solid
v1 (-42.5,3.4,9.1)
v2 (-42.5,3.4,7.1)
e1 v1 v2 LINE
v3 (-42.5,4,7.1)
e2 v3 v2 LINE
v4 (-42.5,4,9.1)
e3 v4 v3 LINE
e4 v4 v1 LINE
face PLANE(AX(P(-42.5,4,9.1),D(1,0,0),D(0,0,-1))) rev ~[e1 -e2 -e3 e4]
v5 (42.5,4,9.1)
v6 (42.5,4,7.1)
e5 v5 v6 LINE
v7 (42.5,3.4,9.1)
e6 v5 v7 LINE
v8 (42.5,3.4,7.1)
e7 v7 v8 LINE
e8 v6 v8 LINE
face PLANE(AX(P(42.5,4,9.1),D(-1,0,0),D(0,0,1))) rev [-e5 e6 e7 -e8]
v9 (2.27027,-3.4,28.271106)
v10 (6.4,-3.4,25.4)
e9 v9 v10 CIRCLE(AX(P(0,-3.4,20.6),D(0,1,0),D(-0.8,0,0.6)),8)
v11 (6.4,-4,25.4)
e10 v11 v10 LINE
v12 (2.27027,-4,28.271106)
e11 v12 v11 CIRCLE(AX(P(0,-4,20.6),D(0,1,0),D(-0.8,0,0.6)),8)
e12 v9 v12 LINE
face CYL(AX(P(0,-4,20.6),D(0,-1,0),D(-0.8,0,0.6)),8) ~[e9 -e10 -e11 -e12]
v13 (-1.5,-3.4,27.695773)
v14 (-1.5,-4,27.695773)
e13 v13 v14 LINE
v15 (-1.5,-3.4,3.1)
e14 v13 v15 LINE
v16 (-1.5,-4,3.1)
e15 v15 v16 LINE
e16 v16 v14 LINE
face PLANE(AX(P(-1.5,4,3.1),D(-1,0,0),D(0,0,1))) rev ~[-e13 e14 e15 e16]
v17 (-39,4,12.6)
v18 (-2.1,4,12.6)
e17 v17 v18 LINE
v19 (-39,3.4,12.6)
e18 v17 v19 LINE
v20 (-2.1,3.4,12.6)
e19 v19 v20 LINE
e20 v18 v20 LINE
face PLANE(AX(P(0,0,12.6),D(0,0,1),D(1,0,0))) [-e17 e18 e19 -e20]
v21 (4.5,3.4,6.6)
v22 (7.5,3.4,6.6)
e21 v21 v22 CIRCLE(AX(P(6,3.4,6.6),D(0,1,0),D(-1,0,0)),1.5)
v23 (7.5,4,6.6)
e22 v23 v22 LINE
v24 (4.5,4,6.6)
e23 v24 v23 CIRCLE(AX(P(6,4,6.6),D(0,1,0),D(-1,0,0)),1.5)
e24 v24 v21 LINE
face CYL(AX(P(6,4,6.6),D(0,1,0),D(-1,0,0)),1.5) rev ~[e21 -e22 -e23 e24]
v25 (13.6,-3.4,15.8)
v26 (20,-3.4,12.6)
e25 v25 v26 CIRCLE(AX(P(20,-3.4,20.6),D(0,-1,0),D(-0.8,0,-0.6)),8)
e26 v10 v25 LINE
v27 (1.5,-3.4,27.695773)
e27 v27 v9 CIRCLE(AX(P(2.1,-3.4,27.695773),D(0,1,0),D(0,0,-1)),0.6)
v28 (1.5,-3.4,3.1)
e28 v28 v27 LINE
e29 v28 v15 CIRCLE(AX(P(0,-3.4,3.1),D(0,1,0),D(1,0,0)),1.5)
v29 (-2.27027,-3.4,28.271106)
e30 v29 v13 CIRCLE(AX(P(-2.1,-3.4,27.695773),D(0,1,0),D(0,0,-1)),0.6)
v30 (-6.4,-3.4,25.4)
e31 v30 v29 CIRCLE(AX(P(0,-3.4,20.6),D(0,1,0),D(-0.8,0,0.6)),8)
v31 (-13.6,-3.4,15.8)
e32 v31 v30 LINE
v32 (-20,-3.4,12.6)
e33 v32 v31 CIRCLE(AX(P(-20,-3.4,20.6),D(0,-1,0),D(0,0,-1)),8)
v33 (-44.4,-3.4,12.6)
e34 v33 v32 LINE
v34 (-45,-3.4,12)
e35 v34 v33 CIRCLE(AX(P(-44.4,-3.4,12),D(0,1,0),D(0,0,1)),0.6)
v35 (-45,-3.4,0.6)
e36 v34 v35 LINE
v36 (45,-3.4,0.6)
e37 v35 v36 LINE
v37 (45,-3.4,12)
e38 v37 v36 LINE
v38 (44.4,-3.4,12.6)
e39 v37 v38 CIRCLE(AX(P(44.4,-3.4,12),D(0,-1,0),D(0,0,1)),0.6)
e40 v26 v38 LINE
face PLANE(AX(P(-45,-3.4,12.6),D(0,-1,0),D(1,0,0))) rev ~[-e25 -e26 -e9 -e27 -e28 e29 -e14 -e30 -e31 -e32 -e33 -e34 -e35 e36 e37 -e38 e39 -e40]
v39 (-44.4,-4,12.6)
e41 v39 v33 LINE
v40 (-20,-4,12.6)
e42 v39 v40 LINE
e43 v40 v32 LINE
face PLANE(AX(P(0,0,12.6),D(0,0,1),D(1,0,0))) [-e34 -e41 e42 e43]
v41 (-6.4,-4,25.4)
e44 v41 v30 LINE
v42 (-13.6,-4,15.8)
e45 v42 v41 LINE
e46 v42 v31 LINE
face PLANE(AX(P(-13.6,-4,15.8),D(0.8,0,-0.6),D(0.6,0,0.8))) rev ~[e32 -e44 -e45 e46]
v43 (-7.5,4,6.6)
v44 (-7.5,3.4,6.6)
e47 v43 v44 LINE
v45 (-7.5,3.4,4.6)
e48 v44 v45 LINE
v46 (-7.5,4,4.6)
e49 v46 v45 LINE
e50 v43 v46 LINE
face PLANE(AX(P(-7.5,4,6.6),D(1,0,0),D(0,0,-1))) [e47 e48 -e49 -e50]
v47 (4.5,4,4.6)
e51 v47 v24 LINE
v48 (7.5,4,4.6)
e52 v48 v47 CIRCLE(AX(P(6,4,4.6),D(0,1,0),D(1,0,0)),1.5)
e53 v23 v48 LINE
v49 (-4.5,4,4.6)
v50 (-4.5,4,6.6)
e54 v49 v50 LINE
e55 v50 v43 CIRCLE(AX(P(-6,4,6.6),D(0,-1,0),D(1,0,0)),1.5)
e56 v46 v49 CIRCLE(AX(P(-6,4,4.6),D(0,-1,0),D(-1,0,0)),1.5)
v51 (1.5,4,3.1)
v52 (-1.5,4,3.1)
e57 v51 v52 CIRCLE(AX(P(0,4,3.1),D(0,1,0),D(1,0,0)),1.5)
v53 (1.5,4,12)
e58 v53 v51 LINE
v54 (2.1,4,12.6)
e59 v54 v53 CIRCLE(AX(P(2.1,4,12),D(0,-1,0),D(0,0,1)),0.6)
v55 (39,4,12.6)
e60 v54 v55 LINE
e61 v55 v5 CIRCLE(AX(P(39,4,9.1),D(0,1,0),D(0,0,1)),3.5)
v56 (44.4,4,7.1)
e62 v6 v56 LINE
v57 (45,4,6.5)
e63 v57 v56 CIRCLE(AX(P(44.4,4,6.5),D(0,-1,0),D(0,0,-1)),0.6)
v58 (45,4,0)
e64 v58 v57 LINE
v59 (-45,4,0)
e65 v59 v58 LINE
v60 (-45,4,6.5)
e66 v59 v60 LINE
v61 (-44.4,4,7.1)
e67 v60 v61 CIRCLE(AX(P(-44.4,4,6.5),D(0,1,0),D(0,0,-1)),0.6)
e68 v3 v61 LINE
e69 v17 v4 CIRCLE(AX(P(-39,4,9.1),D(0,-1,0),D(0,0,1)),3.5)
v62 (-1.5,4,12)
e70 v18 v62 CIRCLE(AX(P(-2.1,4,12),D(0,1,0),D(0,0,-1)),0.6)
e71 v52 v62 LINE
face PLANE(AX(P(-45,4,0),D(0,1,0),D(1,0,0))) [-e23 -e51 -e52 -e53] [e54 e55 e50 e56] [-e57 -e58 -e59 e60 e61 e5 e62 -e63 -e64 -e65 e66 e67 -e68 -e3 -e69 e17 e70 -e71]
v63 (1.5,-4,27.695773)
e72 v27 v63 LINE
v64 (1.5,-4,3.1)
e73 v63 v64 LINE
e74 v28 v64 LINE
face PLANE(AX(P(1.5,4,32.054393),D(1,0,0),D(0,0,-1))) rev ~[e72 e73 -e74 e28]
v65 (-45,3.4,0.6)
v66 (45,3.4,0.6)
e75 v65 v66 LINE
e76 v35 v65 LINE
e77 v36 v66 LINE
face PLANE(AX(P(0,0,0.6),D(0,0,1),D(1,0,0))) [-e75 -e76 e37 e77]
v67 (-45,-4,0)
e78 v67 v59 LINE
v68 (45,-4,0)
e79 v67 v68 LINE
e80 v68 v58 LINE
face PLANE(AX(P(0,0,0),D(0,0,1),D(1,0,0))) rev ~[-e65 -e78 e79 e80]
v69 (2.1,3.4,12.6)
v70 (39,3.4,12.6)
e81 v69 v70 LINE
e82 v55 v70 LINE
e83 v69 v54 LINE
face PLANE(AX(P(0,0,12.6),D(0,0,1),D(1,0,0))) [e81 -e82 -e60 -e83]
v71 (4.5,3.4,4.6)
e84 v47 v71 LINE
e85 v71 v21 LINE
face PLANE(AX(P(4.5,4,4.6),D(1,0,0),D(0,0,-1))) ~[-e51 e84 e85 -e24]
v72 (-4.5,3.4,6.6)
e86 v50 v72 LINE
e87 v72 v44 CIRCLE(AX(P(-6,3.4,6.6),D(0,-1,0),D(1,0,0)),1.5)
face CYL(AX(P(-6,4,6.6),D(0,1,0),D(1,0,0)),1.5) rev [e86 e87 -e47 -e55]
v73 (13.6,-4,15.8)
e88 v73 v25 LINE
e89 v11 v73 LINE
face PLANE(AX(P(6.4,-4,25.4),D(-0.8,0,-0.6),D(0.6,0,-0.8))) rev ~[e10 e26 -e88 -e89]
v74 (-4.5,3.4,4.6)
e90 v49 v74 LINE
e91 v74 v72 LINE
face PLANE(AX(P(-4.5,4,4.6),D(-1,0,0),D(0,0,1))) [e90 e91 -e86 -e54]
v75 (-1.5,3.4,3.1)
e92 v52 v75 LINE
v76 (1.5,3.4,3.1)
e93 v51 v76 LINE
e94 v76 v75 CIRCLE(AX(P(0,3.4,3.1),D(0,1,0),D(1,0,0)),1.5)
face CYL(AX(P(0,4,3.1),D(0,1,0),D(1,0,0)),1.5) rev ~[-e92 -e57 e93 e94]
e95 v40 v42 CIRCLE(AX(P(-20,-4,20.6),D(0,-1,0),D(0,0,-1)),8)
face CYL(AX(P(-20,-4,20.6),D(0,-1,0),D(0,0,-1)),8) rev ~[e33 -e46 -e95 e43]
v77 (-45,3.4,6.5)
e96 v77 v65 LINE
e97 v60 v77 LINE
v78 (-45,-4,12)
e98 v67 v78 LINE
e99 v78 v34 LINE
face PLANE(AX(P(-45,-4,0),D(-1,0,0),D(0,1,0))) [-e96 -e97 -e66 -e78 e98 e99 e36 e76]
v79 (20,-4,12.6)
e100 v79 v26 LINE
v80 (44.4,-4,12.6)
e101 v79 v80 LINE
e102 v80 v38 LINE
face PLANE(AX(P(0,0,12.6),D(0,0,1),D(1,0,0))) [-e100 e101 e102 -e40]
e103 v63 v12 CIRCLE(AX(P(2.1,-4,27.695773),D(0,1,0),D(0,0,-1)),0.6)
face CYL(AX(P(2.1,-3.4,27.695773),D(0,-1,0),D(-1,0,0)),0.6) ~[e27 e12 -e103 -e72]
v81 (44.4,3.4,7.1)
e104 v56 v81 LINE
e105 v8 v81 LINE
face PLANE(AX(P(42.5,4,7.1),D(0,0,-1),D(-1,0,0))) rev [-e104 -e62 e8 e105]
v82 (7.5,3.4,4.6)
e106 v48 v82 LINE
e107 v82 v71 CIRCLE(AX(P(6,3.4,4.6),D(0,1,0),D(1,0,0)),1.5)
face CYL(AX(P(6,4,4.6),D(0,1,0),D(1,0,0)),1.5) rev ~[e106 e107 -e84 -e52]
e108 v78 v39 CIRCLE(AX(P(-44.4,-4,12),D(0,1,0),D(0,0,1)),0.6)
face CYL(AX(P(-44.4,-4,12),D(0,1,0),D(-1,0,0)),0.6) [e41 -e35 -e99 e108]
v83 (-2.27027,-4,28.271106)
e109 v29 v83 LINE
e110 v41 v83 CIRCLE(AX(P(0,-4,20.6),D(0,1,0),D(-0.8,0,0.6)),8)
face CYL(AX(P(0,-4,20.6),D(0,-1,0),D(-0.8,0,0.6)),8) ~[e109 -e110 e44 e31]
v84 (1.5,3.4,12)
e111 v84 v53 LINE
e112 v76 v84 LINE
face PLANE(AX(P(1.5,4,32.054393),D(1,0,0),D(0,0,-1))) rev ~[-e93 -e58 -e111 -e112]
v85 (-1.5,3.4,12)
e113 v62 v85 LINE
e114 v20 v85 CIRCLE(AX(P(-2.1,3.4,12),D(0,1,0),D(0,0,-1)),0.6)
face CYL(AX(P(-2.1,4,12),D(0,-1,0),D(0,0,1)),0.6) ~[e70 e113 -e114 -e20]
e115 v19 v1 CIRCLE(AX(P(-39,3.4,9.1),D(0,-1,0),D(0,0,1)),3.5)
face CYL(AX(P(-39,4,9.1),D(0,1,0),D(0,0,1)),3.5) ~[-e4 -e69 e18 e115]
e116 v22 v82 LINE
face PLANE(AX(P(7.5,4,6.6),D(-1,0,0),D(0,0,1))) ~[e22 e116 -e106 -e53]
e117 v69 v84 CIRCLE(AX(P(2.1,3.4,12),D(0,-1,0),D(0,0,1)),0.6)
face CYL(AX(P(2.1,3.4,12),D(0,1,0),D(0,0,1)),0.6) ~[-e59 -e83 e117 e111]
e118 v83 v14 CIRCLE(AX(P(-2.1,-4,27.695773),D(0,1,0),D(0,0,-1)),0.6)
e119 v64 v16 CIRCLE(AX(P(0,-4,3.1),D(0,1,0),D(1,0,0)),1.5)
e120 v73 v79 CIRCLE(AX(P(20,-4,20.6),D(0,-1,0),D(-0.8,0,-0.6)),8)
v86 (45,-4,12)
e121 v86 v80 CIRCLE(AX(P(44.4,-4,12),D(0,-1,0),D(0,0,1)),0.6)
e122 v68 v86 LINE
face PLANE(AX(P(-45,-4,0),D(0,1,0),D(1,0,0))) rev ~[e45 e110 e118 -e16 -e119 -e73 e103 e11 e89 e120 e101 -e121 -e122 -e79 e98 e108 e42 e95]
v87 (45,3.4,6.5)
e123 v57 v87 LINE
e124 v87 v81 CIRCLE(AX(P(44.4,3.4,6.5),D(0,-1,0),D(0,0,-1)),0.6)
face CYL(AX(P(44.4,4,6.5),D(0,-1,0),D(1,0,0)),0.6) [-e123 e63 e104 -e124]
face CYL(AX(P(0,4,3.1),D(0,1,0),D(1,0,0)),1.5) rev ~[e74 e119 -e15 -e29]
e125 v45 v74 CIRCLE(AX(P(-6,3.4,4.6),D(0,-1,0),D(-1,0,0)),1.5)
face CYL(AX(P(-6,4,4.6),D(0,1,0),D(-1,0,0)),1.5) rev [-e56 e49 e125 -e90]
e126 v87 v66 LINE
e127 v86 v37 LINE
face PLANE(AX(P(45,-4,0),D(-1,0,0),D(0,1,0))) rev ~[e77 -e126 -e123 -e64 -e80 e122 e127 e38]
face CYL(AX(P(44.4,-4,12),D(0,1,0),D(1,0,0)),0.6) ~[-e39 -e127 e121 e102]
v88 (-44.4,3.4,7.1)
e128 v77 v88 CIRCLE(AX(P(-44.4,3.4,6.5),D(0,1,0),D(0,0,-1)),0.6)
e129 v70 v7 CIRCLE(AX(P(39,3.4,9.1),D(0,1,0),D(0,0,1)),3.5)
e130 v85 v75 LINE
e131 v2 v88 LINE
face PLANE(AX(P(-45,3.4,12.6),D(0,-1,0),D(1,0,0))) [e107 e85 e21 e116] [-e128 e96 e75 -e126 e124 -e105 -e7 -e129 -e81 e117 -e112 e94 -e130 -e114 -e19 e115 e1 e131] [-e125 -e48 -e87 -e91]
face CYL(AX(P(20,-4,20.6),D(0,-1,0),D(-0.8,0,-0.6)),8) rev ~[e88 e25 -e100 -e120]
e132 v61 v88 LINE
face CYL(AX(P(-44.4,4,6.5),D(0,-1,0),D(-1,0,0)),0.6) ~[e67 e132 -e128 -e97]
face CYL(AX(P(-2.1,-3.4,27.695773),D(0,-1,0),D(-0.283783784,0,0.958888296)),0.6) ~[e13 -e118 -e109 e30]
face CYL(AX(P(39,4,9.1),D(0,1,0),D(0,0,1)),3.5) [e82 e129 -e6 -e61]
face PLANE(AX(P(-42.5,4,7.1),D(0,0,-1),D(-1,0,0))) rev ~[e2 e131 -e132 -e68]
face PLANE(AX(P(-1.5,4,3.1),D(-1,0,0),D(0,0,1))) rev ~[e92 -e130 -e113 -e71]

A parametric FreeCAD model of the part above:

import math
import FreeCAD as App
import Part
import Sketcher

V = App.Vector


def edges_at(feature, points):
    """Names of the edges that pass closest to the given points."""
    edges = feature.Shape.Edges
    near = lambda p: min(range(len(edges)), key=lambda i: edges[i].distToShape(Part.Vertex(*p))[0])
    return sorted({f"Edge{near(p) + 1}" for p in points})

doc = App.newDocument("Part")
body = doc.addObject("PartDesign::Body", "Body")

# Sketch on XY plane
sketch1 = doc.addObject("Sketcher::SketchObject", "Sketch")
body.addObject(sketch1)
sketch1.AttachmentSupport = (doc.XY_Plane, [""])
sketch1.MapMode = "FlatFace"
sketch1.addGeometry([
    Part.LineSegment(V(-45, 4, 0), V(-45, -4, 0)),
    Part.LineSegment(V(-45, -4, 0), V(45, -4, 0)),
    Part.LineSegment(V(45, -4, 0), V(45, 4, 0)),
    Part.LineSegment(V(45, 4, 0), V(-45, 4, 0)),
], False)
sketch1.addConstraint([
    Sketcher.Constraint("Coincident", 0, 2, 1, 1),
    Sketcher.Constraint("Coincident", 1, 2, 2, 1),
    Sketcher.Constraint("Coincident", 2, 2, 3, 1),
    Sketcher.Constraint("Coincident", 3, 2, 0, 1),
    Sketcher.Constraint("Vertical", 0),
    Sketcher.Constraint("Horizontal", 1),
    Sketcher.Constraint("Vertical", 2),
    Sketcher.Constraint("Horizontal", 3),
    Sketcher.Constraint("Symmetric", 0, 2, 2, 2, -1, 1),
    Sketcher.Constraint("DistanceX", 1, 1, 1, 2, 90.0),
    Sketcher.Constraint("DistanceY", 0, 2, 0, 1, 8.0),
])
pad1 = doc.addObject("PartDesign::Pad", "Pad")
body.addObject(pad1)
pad1.Profile = sketch1
pad1.Length = 12.6

# Sketch on XY plane
sketch2 = doc.addObject("Sketcher::SketchObject", "Sketch001")
body.addObject(sketch2)
sketch2.AttachmentSupport = (doc.XY_Plane, [""])
sketch2.MapMode = "FlatFace"
sketch2.AttachmentOffset = App.Placement(V(0, 0, 12.6), App.Rotation())
sketch2.addGeometry([
    Part.LineSegment(V(-45, 3, 0), V(-45, -3, 0)),
    Part.LineSegment(V(-45, -3, 0), V(45, -3, 0)),
    Part.LineSegment(V(45, -3, 0), V(45, 3, 0)),
    Part.LineSegment(V(45, 3, 0), V(-45, 3, 0)),
], False)
sketch2.addConstraint([
    Sketcher.Constraint("Coincident", 0, 2, 1, 1),
    Sketcher.Constraint("Coincident", 1, 2, 2, 1),
    Sketcher.Constraint("Coincident", 2, 2, 3, 1),
    Sketcher.Constraint("Coincident", 3, 2, 0, 1),
    Sketcher.Constraint("Vertical", 0),
    Sketcher.Constraint("Horizontal", 1),
    Sketcher.Constraint("Vertical", 2),
    Sketcher.Constraint("Horizontal", 3),
    Sketcher.Constraint("Symmetric", 0, 2, 2, 2, -1, 1),
    Sketcher.Constraint("DistanceX", 1, 1, 1, 2, 90.0),
    Sketcher.Constraint("DistanceY", 0, 2, 0, 1, 6.8),
])
pocket1 = doc.addObject("PartDesign::Pocket", "Pocket")
body.addObject(pocket1)
pocket1.Profile = sketch2
pocket1.Length = 12

# Sketch on XZ plane
sketch3 = doc.addObject("Sketcher::SketchObject", "Sketch002")
body.addObject(sketch3)
sketch3.AttachmentSupport = (doc.XZ_Plane, [""])
sketch3.MapMode = "FlatFace"
sketch3.AttachmentOffset = App.Placement(V(0, 0, 4), App.Rotation())
sketch3.addGeometry([
    Part.LineSegment(V(14, 16, 0), V(6, 25, 0)),  # 0
    Part.ArcOfCircle(Part.Circle(V(0, 21, 0), V(0, 0, 1), 8), math.radians(37), math.radians(143)),  # 1
    Part.LineSegment(V(-6, 25, 0), V(-14, 16, 0)),  # 2
    Part.ArcOfCircle(Part.Circle(V(-20, 21, 0), V(0, 0, 1), 8), math.radians(-90), math.radians(-37)),  # 3
    Part.LineSegment(V(-20, 13, 0), V(20, 13, 0)),  # 4
    Part.ArcOfCircle(Part.Circle(V(20, 21, 0), V(0, 0, 1), 8), math.radians(-143), math.radians(-90)),  # 5
], False)
sketch3.addConstraint([
    Sketcher.Constraint("Tangent", 0, 2, 1, 1),
    Sketcher.Constraint("Tangent", 1, 2, 2, 1),
    Sketcher.Constraint("Tangent", 2, 2, 3, 2),
    Sketcher.Constraint("Tangent", 3, 1, 4, 1),
    Sketcher.Constraint("Tangent", 4, 2, 5, 2),
    Sketcher.Constraint("Tangent", 5, 1, 0, 1),
    Sketcher.Constraint("Horizontal", 4),
    Sketcher.Constraint("Equal", 1, 3),
    Sketcher.Constraint("Equal", 3, 5),
    Sketcher.Constraint("Symmetric", 0, 2, 1, 2, -2),
    Sketcher.Constraint("Horizontal", 1, 3, 3, 3),
    Sketcher.Constraint("Radius", 1, 8.0),
    Sketcher.Constraint("DistanceX", 4, 1, 4, 2, 40.0),
    Sketcher.Constraint("DistanceY", -1, 1, 1, 3, 20.6),
])
pad2 = doc.addObject("PartDesign::Pad", "Pad001")
body.addObject(pad2)
pad2.Profile = sketch3
pad2.Length = 0.6
pad2.Reversed = True

# Sketch on XZ plane
sketch4 = doc.addObject("Sketcher::SketchObject", "Sketch003")
body.addObject(sketch4)
sketch4.AttachmentSupport = (doc.XZ_Plane, [""])
sketch4.MapMode = "FlatFace"
sketch4.AttachmentOffset = App.Placement(V(0, 0, -4), App.Rotation())
sketch4.addGeometry([
    Part.LineSegment(V(-1.5, 3.1, 0), V(-1.5, 32.1, 0)),
    Part.LineSegment(V(-1.5, 32.1, 0), V(1.5, 32.1, 0)),
    Part.LineSegment(V(1.5, 32.1, 0), V(1.5, 3.1, 0)),
    Part.ArcOfCircle(Part.Circle(V(0, 3.1, 0), V(0, 0, 1), 1.5), math.radians(180), math.radians(360)),
], False)
sketch4.addConstraint([
    Sketcher.Constraint("Coincident", 0, 2, 1, 1),
    Sketcher.Constraint("Coincident", 1, 2, 2, 1),
    Sketcher.Constraint("Tangent", 2, 2, 3, 2),
    Sketcher.Constraint("Tangent", 3, 1, 0, 1),
    Sketcher.Constraint("Vertical", 0),
    Sketcher.Constraint("Horizontal", 1),
    Sketcher.Constraint("Vertical", 2),
    Sketcher.Constraint("PointOnObject", 3, 3, -2),
    Sketcher.Constraint("Radius", 3, 1.5),
    Sketcher.Constraint("DistanceY", -1, 1, 3, 3, 3.1),
    Sketcher.Constraint("DistanceY", 0, 1, 0, 2, 28.954393),
])
pocket2 = doc.addObject("PartDesign::Pocket", "Pocket001")
body.addObject(pocket2)
pocket2.Profile = sketch4
pocket2.Type = "ThroughAll"
pocket2.Reversed = True

# Sketch on XZ plane
sketch5 = doc.addObject("Sketcher::SketchObject", "Sketch004")
body.addObject(sketch5)
sketch5.AttachmentSupport = (doc.XZ_Plane, [""])
sketch5.MapMode = "FlatFace"
sketch5.AttachmentOffset = App.Placement(V(0, 0, -4), App.Rotation())
sketch5.addGeometry([
    Part.LineSegment(V(-42.5, 9.1, 0), V(-42.5, 7.1, 0)),  # 0
    Part.LineSegment(V(-42.5, 7.1, 0), V(-45, 7.1, 0)),  # 1
    Part.LineSegment(V(-45, 7.1, 0), V(-45, 12.6, 0)),  # 2
    Part.LineSegment(V(-45, 12.6, 0), V(-39, 12.6, 0)),  # 3
    Part.ArcOfCircle(Part.Circle(V(-39, 9.1, 0), V(0, 0, 1), 3.5), math.radians(90), math.radians(180)),  # 4
], False)
sketch5.addConstraint([
    Sketcher.Constraint("Coincident", 0, 2, 1, 1),
    Sketcher.Constraint("Coincident", 1, 2, 2, 1),
    Sketcher.Constraint("Coincident", 2, 2, 3, 1),
    Sketcher.Constraint("Tangent", 3, 2, 4, 1),
    Sketcher.Constraint("Tangent", 4, 2, 0, 1),
    Sketcher.Constraint("Vertical", 0),
    Sketcher.Constraint("Horizontal", 1),
    Sketcher.Constraint("Vertical", 2),
    Sketcher.Constraint("Horizontal", 3),
    Sketcher.Constraint("Radius", 4, 3.5),
    Sketcher.Constraint("DistanceX", 3, 1, 3, 2, 6.0),
    Sketcher.Constraint("DistanceY", 0, 2, 0, 1, 2.0),
    Sketcher.Constraint("DistanceX", 4, 3, -1, 1, 39.0),
    Sketcher.Constraint("DistanceY", -1, 1, 4, 3, 9.1),
])
pocket3 = doc.addObject("PartDesign::Pocket", "Pocket002")
body.addObject(pocket3)
pocket3.Profile = sketch5
pocket3.Length = 0.6
pocket3.Reversed = True
doc.recompute()

mirrored = doc.addObject("PartDesign::Mirrored", "Mirrored")
body.addObject(mirrored)
mirrored.Originals = [pocket3]
mirrored.MirrorPlane = (doc.YZ_Plane, [""])
body.Tip = mirrored

# Sketch on XZ plane
sketch6 = doc.addObject("Sketcher::SketchObject", "Sketch005")
body.addObject(sketch6)
sketch6.AttachmentSupport = (doc.XZ_Plane, [""])
sketch6.MapMode = "FlatFace"
sketch6.AttachmentOffset = App.Placement(V(0, 0, -4), App.Rotation())
sketch6.addGeometry([
    Part.LineSegment(V(-4.5, 6.6, 0), V(-4.5, 4.6, 0)),
    Part.ArcOfCircle(Part.Circle(V(-6, 4.6, 0), V(0, 0, 1), 1.5), math.radians(180), math.radians(360)),
    Part.LineSegment(V(-7.5, 4.6, 0), V(-7.5, 6.6, 0)),
    Part.ArcOfCircle(Part.Circle(V(-6, 6.6, 0), V(0, 0, 1), 1.5), math.radians(0), math.radians(180)),
], False)
sketch6.addConstraint([
    Sketcher.Constraint("Tangent", 0, 2, 1, 2),
    Sketcher.Constraint("Tangent", 1, 1, 2, 1),
    Sketcher.Constraint("Tangent", 2, 2, 3, 2),
    Sketcher.Constraint("Tangent", 3, 1, 0, 1),
    Sketcher.Constraint("Vertical", 0),
    Sketcher.Constraint("Vertical", 2),
    Sketcher.Constraint("Radius", 1, 1.5),
    Sketcher.Constraint("DistanceY", 0, 2, 0, 1, 2.0),
    Sketcher.Constraint("DistanceX", 1, 3, -1, 1, 6.0),
    Sketcher.Constraint("DistanceY", -1, 1, 1, 3, 4.6),
])
pocket4 = doc.addObject("PartDesign::Pocket", "Pocket003")
body.addObject(pocket4)
pocket4.Profile = sketch6
pocket4.Length = 0.6
pocket4.Reversed = True
doc.recompute()

mirrored2 = doc.addObject("PartDesign::Mirrored", "Mirrored001")
body.addObject(mirrored2)
mirrored2.Originals = [pocket4]
mirrored2.MirrorPlane = (doc.YZ_Plane, [""])
body.Tip = mirrored2
doc.recompute()

fillet = doc.addObject("PartDesign::Fillet", "Fillet")
body.addObject(fillet)
fillet.Base = (mirrored2, edges_at(mirrored2, [
    (45, -3.7, 12.6),
    (-45, -3.7, 12.6),
    (-1.5, -3.7, 28.458),
    (1.5, -3.7, 28.458),
    (1.5, 3.7, 12.6),
    (-1.5, 3.7, 12.6),
    (-45, 3.7, 7.1),
    (45, 3.7, 7.1),
]))
fillet.Radius = 0.6

doc.recompute()
